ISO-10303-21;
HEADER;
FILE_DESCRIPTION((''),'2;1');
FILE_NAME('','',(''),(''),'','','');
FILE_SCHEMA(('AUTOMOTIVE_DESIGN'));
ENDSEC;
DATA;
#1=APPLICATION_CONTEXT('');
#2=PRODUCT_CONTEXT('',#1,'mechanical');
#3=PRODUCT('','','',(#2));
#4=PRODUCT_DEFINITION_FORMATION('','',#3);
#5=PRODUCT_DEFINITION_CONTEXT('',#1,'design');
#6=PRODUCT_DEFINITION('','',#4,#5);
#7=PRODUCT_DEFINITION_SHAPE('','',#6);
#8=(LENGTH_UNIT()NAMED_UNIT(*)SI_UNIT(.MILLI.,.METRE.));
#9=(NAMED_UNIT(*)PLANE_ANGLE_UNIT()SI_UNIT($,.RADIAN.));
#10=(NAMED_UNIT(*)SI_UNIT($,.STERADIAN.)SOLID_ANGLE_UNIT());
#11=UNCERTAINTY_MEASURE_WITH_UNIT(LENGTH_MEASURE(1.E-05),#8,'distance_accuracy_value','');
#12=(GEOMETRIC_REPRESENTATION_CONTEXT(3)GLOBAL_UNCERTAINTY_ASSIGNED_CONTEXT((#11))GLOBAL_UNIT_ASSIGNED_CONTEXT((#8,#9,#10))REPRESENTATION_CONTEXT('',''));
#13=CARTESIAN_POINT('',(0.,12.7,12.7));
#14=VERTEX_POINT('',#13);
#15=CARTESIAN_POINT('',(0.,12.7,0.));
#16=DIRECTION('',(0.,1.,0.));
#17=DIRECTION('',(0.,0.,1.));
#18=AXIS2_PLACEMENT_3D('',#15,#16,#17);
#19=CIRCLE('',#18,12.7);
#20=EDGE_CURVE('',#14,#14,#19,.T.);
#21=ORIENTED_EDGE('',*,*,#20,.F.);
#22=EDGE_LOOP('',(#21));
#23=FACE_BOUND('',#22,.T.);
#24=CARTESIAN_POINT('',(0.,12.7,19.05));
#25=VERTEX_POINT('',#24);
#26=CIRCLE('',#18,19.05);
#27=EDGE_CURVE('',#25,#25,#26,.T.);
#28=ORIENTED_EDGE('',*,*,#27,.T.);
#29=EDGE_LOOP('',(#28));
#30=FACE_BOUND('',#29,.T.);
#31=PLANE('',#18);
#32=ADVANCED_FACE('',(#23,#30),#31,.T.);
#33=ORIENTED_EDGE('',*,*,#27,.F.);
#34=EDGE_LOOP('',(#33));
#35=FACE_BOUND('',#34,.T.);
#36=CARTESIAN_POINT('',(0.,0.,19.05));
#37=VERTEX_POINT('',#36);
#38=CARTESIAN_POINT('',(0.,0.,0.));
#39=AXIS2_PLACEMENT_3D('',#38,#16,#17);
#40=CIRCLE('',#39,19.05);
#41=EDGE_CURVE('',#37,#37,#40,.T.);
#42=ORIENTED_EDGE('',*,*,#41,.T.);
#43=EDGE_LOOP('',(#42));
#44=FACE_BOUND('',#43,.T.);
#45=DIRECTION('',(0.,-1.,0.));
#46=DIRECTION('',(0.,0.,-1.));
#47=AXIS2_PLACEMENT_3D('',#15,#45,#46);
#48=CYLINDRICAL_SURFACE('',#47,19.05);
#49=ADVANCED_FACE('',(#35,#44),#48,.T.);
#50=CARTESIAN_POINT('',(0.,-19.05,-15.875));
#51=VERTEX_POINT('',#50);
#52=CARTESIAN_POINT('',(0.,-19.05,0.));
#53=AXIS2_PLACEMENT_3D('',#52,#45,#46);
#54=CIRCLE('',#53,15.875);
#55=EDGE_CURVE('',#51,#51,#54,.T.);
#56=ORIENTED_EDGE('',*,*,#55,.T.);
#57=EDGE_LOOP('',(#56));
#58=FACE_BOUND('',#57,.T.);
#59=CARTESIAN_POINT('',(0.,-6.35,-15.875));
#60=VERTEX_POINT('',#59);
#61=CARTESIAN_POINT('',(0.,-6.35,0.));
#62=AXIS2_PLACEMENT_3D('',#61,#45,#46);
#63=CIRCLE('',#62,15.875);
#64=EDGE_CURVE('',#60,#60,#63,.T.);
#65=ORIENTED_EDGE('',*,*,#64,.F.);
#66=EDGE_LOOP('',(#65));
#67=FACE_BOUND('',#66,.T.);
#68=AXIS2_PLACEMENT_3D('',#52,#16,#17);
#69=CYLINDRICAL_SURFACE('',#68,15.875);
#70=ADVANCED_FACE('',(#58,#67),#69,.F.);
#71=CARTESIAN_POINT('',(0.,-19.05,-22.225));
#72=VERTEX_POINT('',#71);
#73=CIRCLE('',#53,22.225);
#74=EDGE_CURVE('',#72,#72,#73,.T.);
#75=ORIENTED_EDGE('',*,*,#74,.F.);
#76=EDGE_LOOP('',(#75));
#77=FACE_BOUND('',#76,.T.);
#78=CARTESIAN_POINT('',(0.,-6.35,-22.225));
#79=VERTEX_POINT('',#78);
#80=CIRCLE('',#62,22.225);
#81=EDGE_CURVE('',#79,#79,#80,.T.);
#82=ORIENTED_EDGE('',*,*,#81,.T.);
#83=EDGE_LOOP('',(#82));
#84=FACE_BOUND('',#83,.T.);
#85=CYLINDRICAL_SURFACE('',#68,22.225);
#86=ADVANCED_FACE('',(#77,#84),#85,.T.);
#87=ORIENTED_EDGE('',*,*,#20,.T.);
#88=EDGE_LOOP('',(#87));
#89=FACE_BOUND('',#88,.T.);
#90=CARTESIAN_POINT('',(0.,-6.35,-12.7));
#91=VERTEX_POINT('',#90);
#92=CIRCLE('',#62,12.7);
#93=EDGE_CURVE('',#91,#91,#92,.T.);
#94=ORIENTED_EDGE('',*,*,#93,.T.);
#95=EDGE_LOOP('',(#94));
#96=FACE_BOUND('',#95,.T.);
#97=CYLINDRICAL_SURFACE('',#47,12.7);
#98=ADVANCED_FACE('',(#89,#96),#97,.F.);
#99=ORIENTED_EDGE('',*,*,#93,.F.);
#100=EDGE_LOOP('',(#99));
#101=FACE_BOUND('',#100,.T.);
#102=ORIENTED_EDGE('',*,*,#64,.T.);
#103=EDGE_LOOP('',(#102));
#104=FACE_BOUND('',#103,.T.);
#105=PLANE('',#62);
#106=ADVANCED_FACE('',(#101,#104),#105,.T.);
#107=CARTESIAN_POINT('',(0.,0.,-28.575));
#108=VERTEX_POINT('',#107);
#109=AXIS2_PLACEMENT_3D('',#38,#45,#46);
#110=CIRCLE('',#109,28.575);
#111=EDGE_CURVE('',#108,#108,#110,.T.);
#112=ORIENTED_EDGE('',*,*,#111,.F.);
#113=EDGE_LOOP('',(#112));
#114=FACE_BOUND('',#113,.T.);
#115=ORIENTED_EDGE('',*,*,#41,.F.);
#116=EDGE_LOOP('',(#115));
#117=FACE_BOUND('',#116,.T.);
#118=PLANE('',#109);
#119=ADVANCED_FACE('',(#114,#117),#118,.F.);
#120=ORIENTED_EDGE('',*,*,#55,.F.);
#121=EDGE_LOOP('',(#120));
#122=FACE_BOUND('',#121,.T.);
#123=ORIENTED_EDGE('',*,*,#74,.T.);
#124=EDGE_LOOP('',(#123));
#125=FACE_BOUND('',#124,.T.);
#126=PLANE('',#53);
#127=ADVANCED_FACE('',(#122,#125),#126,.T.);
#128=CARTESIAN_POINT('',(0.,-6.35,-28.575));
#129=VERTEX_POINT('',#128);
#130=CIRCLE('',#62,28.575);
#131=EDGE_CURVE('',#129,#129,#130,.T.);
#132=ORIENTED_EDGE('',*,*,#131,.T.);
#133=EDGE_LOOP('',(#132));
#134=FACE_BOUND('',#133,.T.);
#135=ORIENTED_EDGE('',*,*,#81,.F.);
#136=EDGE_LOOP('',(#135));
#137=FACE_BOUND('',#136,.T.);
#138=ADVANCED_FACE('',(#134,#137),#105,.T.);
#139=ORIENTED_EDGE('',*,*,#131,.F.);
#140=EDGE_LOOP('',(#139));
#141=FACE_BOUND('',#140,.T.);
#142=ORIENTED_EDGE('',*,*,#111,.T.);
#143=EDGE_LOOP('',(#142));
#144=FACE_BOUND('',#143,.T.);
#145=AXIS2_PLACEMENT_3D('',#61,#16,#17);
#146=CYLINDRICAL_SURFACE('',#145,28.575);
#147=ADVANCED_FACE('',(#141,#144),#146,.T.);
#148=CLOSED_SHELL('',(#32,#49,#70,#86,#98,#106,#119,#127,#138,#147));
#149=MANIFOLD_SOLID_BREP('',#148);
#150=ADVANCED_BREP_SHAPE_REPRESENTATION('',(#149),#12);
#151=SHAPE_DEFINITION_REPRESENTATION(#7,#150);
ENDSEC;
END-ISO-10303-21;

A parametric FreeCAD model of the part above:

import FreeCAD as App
import Part
import Sketcher

V = App.Vector
Q = App.Units.Quantity

doc = App.newDocument("Part")
params = doc.addObject("Spreadsheet::Sheet", "Params")
for row, (alias, value) in enumerate([
    ("sketch1_diameter", "1 in"),
    ("sketch1_diameter2", "1.5 in"),
    ("pad1_length", "0.5 in"),
    ("sketch2_diameter", "1 in"),
    ("sketch2_diameter2", "2.25 in"),
    ("pad2_length", "0.25 in"),
    ("sketch3_diameter", "1.75 in"),
    ("sketch3_diameter2", "1.25 in"),
    ("pad3_length", "0.5 in"),
], start=1):
    params.set(f"A{row}", alias)
    params.set(f"B{row}", "=" + value)
    params.setAlias(f"B{row}", alias)

body = doc.addObject("PartDesign::Body", "Body")

sketch1 = doc.addObject("Sketcher::SketchObject", "Sketch")
body.addObject(sketch1)
sketch1.AttachmentSupport = (doc.XZ_Plane, [""])
sketch1.MapMode = "FlatFace"
sketch1.addGeometry([
    Part.Circle(V(0, 0, 0), V(0, 0, 1), 19),
    Part.Circle(V(0, 0, 0), V(0, 0, 1), 13),
], False)
sketch1.addConstraint([
    Sketcher.Constraint("Coincident", 0, 3, -1, 1),
    Sketcher.Constraint("Coincident", 1, 3, -1, 1),
    Sketcher.Constraint("Diameter", 1, Q("1 in")),
    Sketcher.Constraint("Diameter", 0, Q("1.5 in")),
])
sketch1.setExpression("Constraints[2]", "Params.sketch1_diameter")
sketch1.setExpression("Constraints[3]", "Params.sketch1_diameter2")
pad1 = doc.addObject("PartDesign::Pad", "Pad")
body.addObject(pad1)
pad1.Profile = sketch1
pad1.setExpression("Length", "Params.pad1_length")
pad1.Reversed = True

sketch2 = doc.addObject("Sketcher::SketchObject", "Sketch001")
body.addObject(sketch2)
sketch2.AttachmentSupport = (doc.XZ_Plane, [""])
sketch2.MapMode = "FlatFace"
sketch2.AttachmentOffset = App.Placement(V(0, 0, 0.25 * 25.4), App.Rotation())
sketch2.addGeometry([
    Part.Circle(V(0, 0, 0), V(0, 0, 1), 29),
    Part.Circle(V(0, 0, 0), V(0, 0, 1), 13),
], False)
sketch2.addConstraint([
    Sketcher.Constraint("Coincident", 0, 3, -1, 1),
    Sketcher.Constraint("Coincident", 1, 3, -1, 1),
    Sketcher.Constraint("Diameter", 1, Q("1 in")),
    Sketcher.Constraint("Diameter", 0, Q("2.25 in")),
])
sketch2.setExpression("Constraints[2]", "Params.sketch2_diameter")
sketch2.setExpression("Constraints[3]", "Params.sketch2_diameter2")
pad2 = doc.addObject("PartDesign::Pad", "Pad001")
body.addObject(pad2)
pad2.Profile = sketch2
pad2.setExpression("Length", "Params.pad2_length")
pad2.Reversed = True

sketch3 = doc.addObject("Sketcher::SketchObject", "Sketch002")
body.addObject(sketch3)
sketch3.AttachmentSupport = (doc.XZ_Plane, [""])
sketch3.MapMode = "FlatFace"
sketch3.AttachmentOffset = App.Placement(V(0, 0, 0.25 * 25.4), App.Rotation())
sketch3.addGeometry([
    Part.Circle(V(0, 0, 0), V(0, 0, 1), 22),
    Part.Circle(V(0, 0, 0), V(0, 0, 1), 16),
], False)
sketch3.addConstraint([
    Sketcher.Constraint("Coincident", 0, 3, -1, 1),
    Sketcher.Constraint("Coincident", 1, 3, -1, 1),
    Sketcher.Constraint("Diameter", 0, Q("1.75 in")),
    Sketcher.Constraint("Diameter", 1, Q("1.25 in")),
])
sketch3.setExpression("Constraints[2]", "Params.sketch3_diameter")
sketch3.setExpression("Constraints[3]", "Params.sketch3_diameter2")
pad3 = doc.addObject("PartDesign::Pad", "Pad002")
body.addObject(pad3)
pad3.Profile = sketch3
pad3.setExpression("Length", "Params.pad3_length")

doc.recompute()
